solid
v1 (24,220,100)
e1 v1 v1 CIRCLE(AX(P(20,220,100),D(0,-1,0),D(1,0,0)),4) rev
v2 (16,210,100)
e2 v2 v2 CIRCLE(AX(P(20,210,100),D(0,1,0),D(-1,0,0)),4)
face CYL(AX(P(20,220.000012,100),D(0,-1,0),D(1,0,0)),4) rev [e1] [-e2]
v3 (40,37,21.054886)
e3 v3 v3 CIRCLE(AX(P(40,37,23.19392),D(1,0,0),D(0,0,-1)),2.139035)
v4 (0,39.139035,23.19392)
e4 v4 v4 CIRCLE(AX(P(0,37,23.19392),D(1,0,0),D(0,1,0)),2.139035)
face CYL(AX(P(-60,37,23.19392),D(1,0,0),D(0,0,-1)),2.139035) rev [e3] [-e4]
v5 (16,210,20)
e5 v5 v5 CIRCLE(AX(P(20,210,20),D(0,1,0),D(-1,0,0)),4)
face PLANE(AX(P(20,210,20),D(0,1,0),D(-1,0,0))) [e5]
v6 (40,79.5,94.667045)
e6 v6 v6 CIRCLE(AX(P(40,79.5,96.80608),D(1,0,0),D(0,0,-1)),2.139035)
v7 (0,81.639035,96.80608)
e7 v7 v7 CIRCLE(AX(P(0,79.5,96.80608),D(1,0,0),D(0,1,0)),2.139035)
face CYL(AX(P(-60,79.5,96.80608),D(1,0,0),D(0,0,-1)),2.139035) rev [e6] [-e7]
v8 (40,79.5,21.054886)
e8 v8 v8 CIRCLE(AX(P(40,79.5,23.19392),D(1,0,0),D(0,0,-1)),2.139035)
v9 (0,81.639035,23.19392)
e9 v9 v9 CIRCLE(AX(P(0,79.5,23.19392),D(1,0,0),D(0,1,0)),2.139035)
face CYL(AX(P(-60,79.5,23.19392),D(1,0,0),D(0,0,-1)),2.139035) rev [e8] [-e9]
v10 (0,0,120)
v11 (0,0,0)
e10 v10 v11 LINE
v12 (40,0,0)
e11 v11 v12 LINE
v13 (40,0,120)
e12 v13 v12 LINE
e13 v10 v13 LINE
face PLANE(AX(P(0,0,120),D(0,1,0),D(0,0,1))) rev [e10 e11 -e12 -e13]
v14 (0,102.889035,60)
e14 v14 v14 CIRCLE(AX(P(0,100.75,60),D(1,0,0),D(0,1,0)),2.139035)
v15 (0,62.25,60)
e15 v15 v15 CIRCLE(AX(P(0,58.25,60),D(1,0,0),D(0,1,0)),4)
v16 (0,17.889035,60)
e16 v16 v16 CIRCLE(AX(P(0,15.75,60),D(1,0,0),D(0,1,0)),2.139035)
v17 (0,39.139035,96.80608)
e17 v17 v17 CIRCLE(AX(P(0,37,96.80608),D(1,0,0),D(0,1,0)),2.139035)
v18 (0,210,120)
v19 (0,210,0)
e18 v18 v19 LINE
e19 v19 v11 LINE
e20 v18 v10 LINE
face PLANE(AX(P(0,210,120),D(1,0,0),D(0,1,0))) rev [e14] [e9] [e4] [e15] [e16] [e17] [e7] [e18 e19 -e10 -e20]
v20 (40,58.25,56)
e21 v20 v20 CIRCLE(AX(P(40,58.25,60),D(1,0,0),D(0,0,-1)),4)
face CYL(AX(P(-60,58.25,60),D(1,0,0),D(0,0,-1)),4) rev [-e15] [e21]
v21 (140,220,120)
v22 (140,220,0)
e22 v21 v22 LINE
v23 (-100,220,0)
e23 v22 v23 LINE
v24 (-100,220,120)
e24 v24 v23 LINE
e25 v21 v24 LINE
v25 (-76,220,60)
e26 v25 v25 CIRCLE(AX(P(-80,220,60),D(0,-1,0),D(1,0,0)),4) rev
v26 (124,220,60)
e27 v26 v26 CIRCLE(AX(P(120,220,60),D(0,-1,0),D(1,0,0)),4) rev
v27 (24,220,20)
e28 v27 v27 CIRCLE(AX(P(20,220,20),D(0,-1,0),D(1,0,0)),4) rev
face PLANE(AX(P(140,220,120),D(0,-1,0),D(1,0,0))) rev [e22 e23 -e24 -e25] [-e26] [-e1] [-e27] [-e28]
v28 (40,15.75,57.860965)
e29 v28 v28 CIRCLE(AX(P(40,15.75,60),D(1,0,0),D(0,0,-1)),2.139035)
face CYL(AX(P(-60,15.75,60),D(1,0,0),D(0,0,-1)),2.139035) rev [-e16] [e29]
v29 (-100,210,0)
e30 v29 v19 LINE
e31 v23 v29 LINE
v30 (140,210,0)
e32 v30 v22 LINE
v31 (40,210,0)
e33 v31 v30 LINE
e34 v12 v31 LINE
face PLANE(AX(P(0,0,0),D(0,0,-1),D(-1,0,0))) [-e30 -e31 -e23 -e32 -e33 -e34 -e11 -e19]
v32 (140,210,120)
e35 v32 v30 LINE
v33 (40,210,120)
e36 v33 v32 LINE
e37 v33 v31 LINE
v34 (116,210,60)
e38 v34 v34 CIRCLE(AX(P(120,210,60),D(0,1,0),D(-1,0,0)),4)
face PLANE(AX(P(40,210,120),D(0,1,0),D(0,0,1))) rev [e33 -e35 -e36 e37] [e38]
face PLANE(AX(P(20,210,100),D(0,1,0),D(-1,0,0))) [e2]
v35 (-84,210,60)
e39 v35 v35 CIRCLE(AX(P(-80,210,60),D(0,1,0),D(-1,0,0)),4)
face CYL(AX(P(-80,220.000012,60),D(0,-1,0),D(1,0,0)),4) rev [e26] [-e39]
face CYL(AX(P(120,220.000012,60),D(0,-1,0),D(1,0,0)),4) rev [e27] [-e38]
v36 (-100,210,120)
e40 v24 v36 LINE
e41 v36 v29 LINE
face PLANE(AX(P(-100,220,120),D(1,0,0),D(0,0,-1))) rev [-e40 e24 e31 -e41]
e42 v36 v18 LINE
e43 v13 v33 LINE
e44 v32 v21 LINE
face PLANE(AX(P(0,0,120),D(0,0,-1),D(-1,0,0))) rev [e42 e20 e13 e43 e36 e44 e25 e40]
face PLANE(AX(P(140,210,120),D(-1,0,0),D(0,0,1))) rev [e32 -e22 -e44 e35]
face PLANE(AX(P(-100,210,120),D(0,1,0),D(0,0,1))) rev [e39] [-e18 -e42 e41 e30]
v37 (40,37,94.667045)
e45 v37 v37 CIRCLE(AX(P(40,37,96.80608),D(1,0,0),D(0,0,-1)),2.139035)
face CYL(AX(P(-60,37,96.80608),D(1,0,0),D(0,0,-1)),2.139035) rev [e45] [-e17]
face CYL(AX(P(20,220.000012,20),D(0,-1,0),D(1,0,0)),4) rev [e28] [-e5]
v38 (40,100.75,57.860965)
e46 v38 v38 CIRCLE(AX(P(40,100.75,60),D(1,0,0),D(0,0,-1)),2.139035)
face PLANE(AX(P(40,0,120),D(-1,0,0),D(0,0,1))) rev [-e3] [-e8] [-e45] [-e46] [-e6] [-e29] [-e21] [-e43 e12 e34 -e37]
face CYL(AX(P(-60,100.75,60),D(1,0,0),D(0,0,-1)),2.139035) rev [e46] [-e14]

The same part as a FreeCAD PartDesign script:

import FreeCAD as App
import Part
import Sketcher

V = App.Vector

doc = App.newDocument("Part")
params = doc.addObject("Spreadsheet::Sheet", "Params")
for row, (alias, value) in enumerate([
    ("sketch1_width", "40 mm"),
    ("sketch1_width2", "100 mm"),
    ("sketch1_height", "210 mm"),
    ("sketch1_height2", "10 mm"),
    ("pad1_length", "120 mm"),
    ("sketch2_diameter", "8 mm"),
    ("pocket1_length", "100 mm"),
    ("sketch3_diameter", "8 mm"),
    ("pocket2_length", "1 mm"),
    ("pocket2_length2", "10 mm"),
], start=1):
    params.set(f"A{row}", alias)
    params.set(f"B{row}", "=" + value)
    params.setAlias(f"B{row}", alias)

body = doc.addObject("PartDesign::Body", "Body")

# Sketch on XY plane
sketch1 = body.newObject("Sketcher::SketchObject", "Sketch")
sketch1.AttachmentSupport = (doc.getObject("XY_Plane"), [""])
sketch1.MapMode = "FlatFace"
sketch1.addGeometry(Part.LineSegment(V(0, 0, 0), V(40, 0, 0)), False)
sketch1.addGeometry(Part.LineSegment(V(40, 0, 0), V(40, 210, 0)), False)
sketch1.addGeometry(Part.LineSegment(V(40, 210, 0), V(140, 210, 0)), False)
sketch1.addGeometry(Part.LineSegment(V(140, 210, 0), V(140, 220, 0)), False)
sketch1.addGeometry(Part.LineSegment(V(140, 220, 0), V(-100, 220, 0)), False)
sketch1.addGeometry(Part.LineSegment(V(-100, 220, 0), V(-100, 210, 0)), False)
sketch1.addGeometry(Part.LineSegment(V(-100, 210, 0), V(0, 210, 0)), False)
sketch1.addGeometry(Part.LineSegment(V(0, 210, 0), V(0, 0, 0)), False)
sketch1.addConstraint(Sketcher.Constraint("Coincident", 0, 2, 1, 1))
sketch1.addConstraint(Sketcher.Constraint("Coincident", 1, 2, 2, 1))
sketch1.addConstraint(Sketcher.Constraint("Coincident", 2, 2, 3, 1))
sketch1.addConstraint(Sketcher.Constraint("Coincident", 3, 2, 4, 1))
sketch1.addConstraint(Sketcher.Constraint("Coincident", 4, 2, 5, 1))
sketch1.addConstraint(Sketcher.Constraint("Coincident", 5, 2, 6, 1))
sketch1.addConstraint(Sketcher.Constraint("Coincident", 6, 2, 7, 1))
sketch1.addConstraint(Sketcher.Constraint("Coincident", 7, 2, 0, 1))
sketch1.addConstraint(Sketcher.Constraint("Horizontal", 0))
sketch1.addConstraint(Sketcher.Constraint("Vertical", 1))
sketch1.addConstraint(Sketcher.Constraint("Horizontal", 2))
sketch1.addConstraint(Sketcher.Constraint("Vertical", 3))
sketch1.addConstraint(Sketcher.Constraint("Horizontal", 4))
sketch1.addConstraint(Sketcher.Constraint("Vertical", 5))
sketch1.addConstraint(Sketcher.Constraint("Horizontal", 6))
sketch1.addConstraint(Sketcher.Constraint("Vertical", 7))
sketch1.addConstraint(Sketcher.Constraint("Coincident", 7, 2, -1, 1))
sketch1.addConstraint(Sketcher.Constraint("Horizontal", 2, 2, 5, 2))
sketch1.addConstraint(Sketcher.Constraint("Equal", 2, 6))
sketch1.addConstraint(Sketcher.Constraint("DistanceX", 0, 1, 0, 2, 40.0))
sketch1.addConstraint(Sketcher.Constraint("DistanceX", 2, 1, 2, 2, 100.0))
sketch1.addConstraint(Sketcher.Constraint("DistanceY", 1, 1, 1, 2, 210.0))
sketch1.addConstraint(Sketcher.Constraint("DistanceY", 3, 1, 3, 2, 10.0))
sketch1.setExpression("Constraints[19]", "Params.sketch1_width")
sketch1.setExpression("Constraints[20]", "Params.sketch1_width2")
sketch1.setExpression("Constraints[21]", "Params.sketch1_height")
sketch1.setExpression("Constraints[22]", "Params.sketch1_height2")
pad1 = body.newObject("PartDesign::Pad", "Pad")
pad1.Profile = sketch1
pad1.setExpression("Length", "Params.pad1_length")

# Sketch on YZ plane
sketch2 = body.newObject("Sketcher::SketchObject", "Sketch001")
sketch2.AttachmentSupport = (doc.getObject("YZ_Plane"), [""])
sketch2.MapMode = "FlatFace"
sketch2.AttachmentOffset = App.Placement(V(0, 0, 40), App.Rotation())
sketch2.addGeometry(Part.Circle(V(58.25, 60, 0), V(0, 0, 1), 4), False)
sketch2.addGeometry(Part.Circle(V(100.75, 60, 0), V(0, 0, 1), 2.139035), False)
sketch2.addGeometry(Part.Circle(V(79.5, 23.19392, 0), V(0, 0, 1), 2.139035), False)
sketch2.addGeometry(Part.Circle(V(37, 23.19392, 0), V(0, 0, 1), 2.139035), False)
sketch2.addGeometry(Part.Circle(V(15.75, 60, 0), V(0, 0, 1), 2.139035), False)
sketch2.addGeometry(Part.Circle(V(37, 96.80608, 0), V(0, 0, 1), 2.139035), False)
sketch2.addGeometry(Part.Circle(V(79.5, 96.80608, 0), V(0, 0, 1), 2.139035), False)
sketch2.addConstraint(Sketcher.Constraint("Equal", 1, 2))
sketch2.addConstraint(Sketcher.Constraint("Equal", 2, 3))
sketch2.addConstraint(Sketcher.Constraint("Equal", 3, 4))
sketch2.addConstraint(Sketcher.Constraint("Equal", 4, 5))
sketch2.addConstraint(Sketcher.Constraint("Equal", 5, 6))
sketch2.addConstraint(Sketcher.Constraint("Horizontal", 0, 3, 1, 3))
sketch2.addConstraint(Sketcher.Constraint("Horizontal", 2, 3, 3, 3))
sketch2.addConstraint(Sketcher.Constraint("Horizontal", 1, 3, 4, 3))
sketch2.addConstraint(Sketcher.Constraint("Horizontal", 5, 3, 6, 3))
sketch2.addConstraint(Sketcher.Constraint("Vertical", 3, 3, 5, 3))
sketch2.addConstraint(Sketcher.Constraint("Vertical", 2, 3, 6, 3))
sketch2.addConstraint(Sketcher.Constraint("Diameter", 0, 8.0))
sketch2.addConstraint(Sketcher.Constraint("DistanceY", -1, 1, 0, 3, 60.0))
sketch2.addConstraint(Sketcher.Constraint("DistanceX", -1, 1, 3, 3, 37.0))
sketch2.addConstraint(Sketcher.Constraint("DistanceX", 4, 3, 1, 3, 85.0))
sketch2.addConstraint(Sketcher.Constraint("DistanceX", -1, 1, 2, 3, 79.5))
sketch2.addConstraint(Sketcher.Constraint("DistanceX", 0, 3, 1, 3, 42.5))
sketch2.addConstraint(Sketcher.Constraint("Diameter", 1, 4.27807))
sketch2.addConstraint(Sketcher.Constraint("DistanceX", -1, 1, 0, 3, 58.25))
sketch2.addConstraint(Sketcher.Constraint("DistanceY", -1, 1, 2, 3, 23.19392))
sketch2.addConstraint(Sketcher.Constraint("DistanceY", -1, 1, 5, 3, 96.80608))
sketch2.setExpression("Constraints[11]", "Params.sketch2_diameter")
pocket1 = body.newObject("PartDesign::Pocket", "Pocket")
pocket1.Profile = sketch2
pocket1.setExpression("Length", "Params.pocket1_length")

# Sketch on XZ plane
sketch3 = body.newObject("Sketcher::SketchObject", "Sketch002")
sketch3.AttachmentSupport = (doc.getObject("XZ_Plane"), [""])
sketch3.MapMode = "FlatFace"
sketch3.AttachmentOffset = App.Placement(V(0, 0, -220), App.Rotation())
sketch3.addGeometry(Part.Circle(V(-80, 60, 0), V(0, 0, 1), 4), False)
sketch3.addGeometry(Part.Circle(V(20, 20, 0), V(0, 0, 1), 4), False)
sketch3.addGeometry(Part.Circle(V(120, 60, 0), V(0, 0, 1), 4), False)
sketch3.addGeometry(Part.Circle(V(20, 100, 0), V(0, 0, 1), 4), False)
sketch3.addConstraint(Sketcher.Constraint("Equal", 0, 1))
sketch3.addConstraint(Sketcher.Constraint("Equal", 1, 2))
sketch3.addConstraint(Sketcher.Constraint("Equal", 2, 3))
sketch3.addConstraint(Sketcher.Constraint("Horizontal", 0, 3, 2, 3))
sketch3.addConstraint(Sketcher.Constraint("Vertical", 1, 3, 3, 3))
sketch3.addConstraint(Sketcher.Constraint("Diameter", 0, 8.0))
sketch3.addConstraint(Sketcher.Constraint("DistanceX", 0, 3, -1, 1, 80.0))
sketch3.addConstraint(Sketcher.Constraint("DistanceY", -1, 1, 0, 3, 60.0))
sketch3.addConstraint(Sketcher.Constraint("DistanceX", -1, 1, 1, 3, 20.0))
sketch3.addConstraint(Sketcher.Constraint("DistanceY", -1, 1, 1, 3, 20.0))
sketch3.addConstraint(Sketcher.Constraint("DistanceX", -1, 1, 2, 3, 120.0))
sketch3.addConstraint(Sketcher.Constraint("DistanceY", -1, 1, 3, 3, 100.0))
sketch3.setExpression("Constraints[5]", "Params.sketch3_diameter")
pocket2 = body.newObject("PartDesign::Pocket", "Pocket001")
pocket2.Profile = sketch3
pocket2.Type = "TwoLengths"
pocket2.setExpression("Length", "Params.pocket2_length")
pocket2.setExpression("Length2", "Params.pocket2_length2")

doc.recompute()
